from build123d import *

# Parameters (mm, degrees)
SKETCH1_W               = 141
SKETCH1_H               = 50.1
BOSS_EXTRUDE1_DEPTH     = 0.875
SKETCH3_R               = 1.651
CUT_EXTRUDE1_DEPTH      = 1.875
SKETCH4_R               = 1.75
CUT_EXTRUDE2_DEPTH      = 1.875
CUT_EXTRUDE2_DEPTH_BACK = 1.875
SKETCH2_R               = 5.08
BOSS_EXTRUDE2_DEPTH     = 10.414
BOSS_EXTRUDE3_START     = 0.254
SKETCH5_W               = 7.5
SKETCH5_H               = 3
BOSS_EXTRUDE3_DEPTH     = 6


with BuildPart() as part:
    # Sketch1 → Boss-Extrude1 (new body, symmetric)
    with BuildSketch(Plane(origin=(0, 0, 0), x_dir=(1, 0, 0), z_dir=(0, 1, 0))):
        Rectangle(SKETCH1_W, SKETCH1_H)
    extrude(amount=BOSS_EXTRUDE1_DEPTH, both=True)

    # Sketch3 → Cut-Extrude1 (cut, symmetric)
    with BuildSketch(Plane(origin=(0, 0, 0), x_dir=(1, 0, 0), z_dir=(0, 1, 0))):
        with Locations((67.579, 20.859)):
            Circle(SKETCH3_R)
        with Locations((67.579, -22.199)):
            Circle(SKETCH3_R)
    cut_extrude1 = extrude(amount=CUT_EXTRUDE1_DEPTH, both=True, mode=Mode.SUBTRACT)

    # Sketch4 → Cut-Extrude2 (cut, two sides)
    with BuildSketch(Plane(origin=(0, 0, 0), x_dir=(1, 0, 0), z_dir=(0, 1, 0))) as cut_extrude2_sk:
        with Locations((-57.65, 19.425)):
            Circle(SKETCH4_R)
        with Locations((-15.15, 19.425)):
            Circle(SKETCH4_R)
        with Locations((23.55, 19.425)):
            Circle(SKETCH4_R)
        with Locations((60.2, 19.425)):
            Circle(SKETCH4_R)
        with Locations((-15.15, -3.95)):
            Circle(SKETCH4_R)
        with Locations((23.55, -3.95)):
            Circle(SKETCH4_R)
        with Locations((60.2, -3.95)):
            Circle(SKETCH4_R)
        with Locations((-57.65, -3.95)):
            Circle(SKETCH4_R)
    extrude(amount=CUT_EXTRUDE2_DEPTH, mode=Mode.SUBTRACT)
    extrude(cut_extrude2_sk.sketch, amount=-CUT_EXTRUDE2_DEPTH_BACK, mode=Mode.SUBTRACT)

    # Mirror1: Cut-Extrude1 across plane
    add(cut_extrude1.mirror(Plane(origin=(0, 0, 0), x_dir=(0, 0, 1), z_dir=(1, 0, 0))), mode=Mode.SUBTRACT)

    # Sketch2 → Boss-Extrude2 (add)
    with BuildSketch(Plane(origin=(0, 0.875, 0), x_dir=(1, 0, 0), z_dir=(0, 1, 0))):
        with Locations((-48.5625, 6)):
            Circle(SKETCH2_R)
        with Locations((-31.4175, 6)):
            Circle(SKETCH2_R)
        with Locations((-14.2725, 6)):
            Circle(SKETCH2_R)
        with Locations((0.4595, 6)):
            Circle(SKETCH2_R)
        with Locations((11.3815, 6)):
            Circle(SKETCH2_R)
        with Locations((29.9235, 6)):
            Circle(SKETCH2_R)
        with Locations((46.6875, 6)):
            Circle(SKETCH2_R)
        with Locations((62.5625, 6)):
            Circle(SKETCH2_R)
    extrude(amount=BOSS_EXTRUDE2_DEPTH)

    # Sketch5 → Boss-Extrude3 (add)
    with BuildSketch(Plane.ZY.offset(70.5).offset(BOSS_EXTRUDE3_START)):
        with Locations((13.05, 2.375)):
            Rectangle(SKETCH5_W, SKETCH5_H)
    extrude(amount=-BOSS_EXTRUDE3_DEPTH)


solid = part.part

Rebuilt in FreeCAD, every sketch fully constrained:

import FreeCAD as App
import Part
import Sketcher
Q = App.Units.Quantity


def add_polygon(sketch, points):
    """Adds a closed chain of lines whose ends are joined by coincident constraints."""
    first, n = sketch.GeometryCount, len(points)
    for a, b in zip(points, points[1:] + points[:1]):
        sketch.addGeometry(Part.LineSegment(App.Vector(*a, 0), App.Vector(*b, 0)), False)
    for i in range(n):
        sketch.addConstraint(Sketcher.Constraint("Coincident", first + i, 2, first + (i + 1) % n, 1))

doc = App.newDocument("Part")
body = doc.addObject("PartDesign::Body", "Body")

sketch1 = doc.addObject("Sketcher::SketchObject", "Sketch")
body.addObject(sketch1)
sketch1.AttachmentSupport = (doc.XZ_Plane, [""])
sketch1.MapMode = "FlatFace"
add_polygon(sketch1, [(-70, -25), (-70, 25), (70, 25), (70, -25)])
sketch1.addConstraint([
    Sketcher.Constraint("Vertical", 0),
    Sketcher.Constraint("Horizontal", 1),
    Sketcher.Constraint("Vertical", 2),
    Sketcher.Constraint("Horizontal", 3),
    Sketcher.Constraint("Symmetric", 0, 2, 2, 2, -1, 1),
    Sketcher.Constraint("DistanceX", 1, 1, 1, 2, Q("141 mm")),
    Sketcher.Constraint("DistanceY", 0, 1, 0, 2, Q("50.1 mm")),
])
pad1 = doc.addObject("PartDesign::Pad", "Pad")
body.addObject(pad1)
pad1.Profile = sketch1
pad1.Length = 1.75
pad1.Midplane = True

sketch2 = doc.addObject("Sketcher::SketchObject", "Sketch001")
body.addObject(sketch2)
sketch2.AttachmentSupport = (doc.XZ_Plane, [""])
sketch2.MapMode = "FlatFace"
sketch2.addGeometry([
    Part.Circle(App.Vector(67.6, -20.9, 0), App.Vector(0, 0, 1), 1.7),
    Part.Circle(App.Vector(67.6, 22.2, 0), App.Vector(0, 0, 1), 1.7),
], False)
sketch2.addConstraint([
    Sketcher.Constraint("Equal", 0, 1),
    Sketcher.Constraint("Vertical", 0, 3, 1, 3),
    Sketcher.Constraint("Diameter", 0, Q("3.302 mm")),
    Sketcher.Constraint("DistanceX", -1, 1, 0, 3, Q("67.579 mm")),
    Sketcher.Constraint("DistanceY", 0, 3, -1, 1, Q("20.859 mm")),
    Sketcher.Constraint("DistanceY", -1, 1, 1, 3, Q("22.199 mm")),
])
pocket1 = doc.addObject("PartDesign::Pocket", "Pocket")
body.addObject(pocket1)
pocket1.Profile = sketch2
pocket1.Length = 3.75
pocket1.Midplane = True

sketch3 = doc.addObject("Sketcher::SketchObject", "Sketch002")
body.addObject(sketch3)
sketch3.AttachmentSupport = (doc.XZ_Plane, [""])
sketch3.MapMode = "FlatFace"
sketch3.addGeometry([
    Part.Circle(App.Vector(-57.6, -19.4, 0), App.Vector(0, 0, 1), 1.8),
    Part.Circle(App.Vector(-15.2, -19.4, 0), App.Vector(0, 0, 1), 1.8),
    Part.Circle(App.Vector(23.6, -19.4, 0), App.Vector(0, 0, 1), 1.8),
    Part.Circle(App.Vector(60.2, -19.4, 0), App.Vector(0, 0, 1), 1.8),
    Part.Circle(App.Vector(-15.2, 4, 0), App.Vector(0, 0, 1), 1.8),
    Part.Circle(App.Vector(23.6, 4, 0), App.Vector(0, 0, 1), 1.8),
    Part.Circle(App.Vector(60.2, 4, 0), App.Vector(0, 0, 1), 1.8),
    Part.Circle(App.Vector(-57.6, 4, 0), App.Vector(0, 0, 1), 1.8),
], False)
sketch3.addConstraint([
    Sketcher.Constraint("Equal", 0, 1),
    Sketcher.Constraint("Equal", 1, 2),
    Sketcher.Constraint("Equal", 2, 3),
    Sketcher.Constraint("Equal", 3, 4),
    Sketcher.Constraint("Equal", 4, 5),
    Sketcher.Constraint("Equal", 5, 6),
    Sketcher.Constraint("Equal", 6, 7),
    Sketcher.Constraint("Horizontal", 0, 3, 1, 3),
    Sketcher.Constraint("Horizontal", 1, 3, 2, 3),
    Sketcher.Constraint("Horizontal", 2, 3, 3, 3),
    Sketcher.Constraint("Horizontal", 4, 3, 5, 3),
    Sketcher.Constraint("Horizontal", 5, 3, 6, 3),
    Sketcher.Constraint("Horizontal", 6, 3, 7, 3),
    Sketcher.Constraint("Vertical", 1, 3, 4, 3),
    Sketcher.Constraint("Vertical", 2, 3, 5, 3),
    Sketcher.Constraint("Vertical", 3, 3, 6, 3),
    Sketcher.Constraint("Vertical", 0, 3, 7, 3),
    Sketcher.Constraint("Diameter", 0, Q("3.5 mm")),
    Sketcher.Constraint("DistanceX", -1, 1, 3, 3, Q("60.2 mm")),
    Sketcher.Constraint("DistanceX", 0, 3, 1, 3, Q("42.5 mm")),
    Sketcher.Constraint("DistanceX", 1, 3, 2, 3, Q("38.7 mm")),
    Sketcher.Constraint("DistanceX", 0, 3, -1, 1, Q("57.65 mm")),
    Sketcher.Constraint("DistanceY", -1, 1, 4, 3, Q("3.95 mm")),
    Sketcher.Constraint("DistanceY", 0, 3, -1, 1, Q("19.425 mm")),
])
pocket2 = doc.addObject("PartDesign::Pocket", "Pocket001")
body.addObject(pocket2)
pocket2.Profile = sketch3
pocket2.Type = "ThroughAll"
pocket2.Midplane = True
doc.recompute()

mirrored = doc.addObject("PartDesign::Mirrored", "Mirrored")
body.addObject(mirrored)
mirrored.Originals = [pocket1]
mirrored.MirrorPlane = (doc.YZ_Plane, [""])
body.Tip = mirrored

sketch4 = doc.addObject("Sketcher::SketchObject", "Sketch003")
body.addObject(sketch4)
sketch4.AttachmentSupport = (doc.XZ_Plane, [""])
sketch4.MapMode = "FlatFace"
sketch4.AttachmentOffset = App.Placement(App.Vector(0, 0, -0.875), App.Rotation())
sketch4.addGeometry([
    Part.Circle(App.Vector(-49, -6, 0), App.Vector(0, 0, 1), 5),
    Part.Circle(App.Vector(-31, -6, 0), App.Vector(0, 0, 1), 5),
    Part.Circle(App.Vector(-14, -6, 0), App.Vector(0, 0, 1), 5),
    Part.Circle(App.Vector(0, -6, 0), App.Vector(0, 0, 1), 5),
    Part.Circle(App.Vector(11, -6, 0), App.Vector(0, 0, 1), 5),
    Part.Circle(App.Vector(30, -6, 0), App.Vector(0, 0, 1), 5),
    Part.Circle(App.Vector(47, -6, 0), App.Vector(0, 0, 1), 5),
    Part.Circle(App.Vector(63, -6, 0), App.Vector(0, 0, 1), 5),
], False)
sketch4.addConstraint([
    Sketcher.Constraint("Equal", 0, 1),
    Sketcher.Constraint("Equal", 1, 2),
    Sketcher.Constraint("Equal", 2, 3),
    Sketcher.Constraint("Equal", 3, 4),
    Sketcher.Constraint("Equal", 4, 5),
    Sketcher.Constraint("Equal", 5, 6),
    Sketcher.Constraint("Equal", 6, 7),
    Sketcher.Constraint("Horizontal", 0, 3, 1, 3),
    Sketcher.Constraint("Horizontal", 1, 3, 2, 3),
    Sketcher.Constraint("Horizontal", 2, 3, 3, 3),
    Sketcher.Constraint("Horizontal", 3, 3, 4, 3),
    Sketcher.Constraint("Horizontal", 4, 3, 5, 3),
    Sketcher.Constraint("Horizontal", 5, 3, 6, 3),
    Sketcher.Constraint("Horizontal", 6, 3, 7, 3),
    Sketcher.Constraint("Diameter", 0, Q("10.16 mm")),
    Sketcher.Constraint("DistanceY", 0, 3, -1, 1, Q("6 mm")),
    Sketcher.Constraint("DistanceX", 0, 3, 2, 3, Q("34.29 mm")),
    Sketcher.Constraint("DistanceX", 2, 3, 6, 3, Q("60.96 mm")),
    Sketcher.Constraint("DistanceX", 0, 3, 1, 3, Q("17.145 mm")),
    Sketcher.Constraint("DistanceX", 2, 3, 3, 3, Q("14.732 mm")),
    Sketcher.Constraint("DistanceX", 3, 3, 4, 3, Q("10.922 mm")),
    Sketcher.Constraint("DistanceX", 4, 3, 5, 3, Q("18.542 mm")),
    Sketcher.Constraint("DistanceX", 6, 3, 7, 3, Q("15.875 mm")),
    Sketcher.Constraint("DistanceX", 0, 3, -1, 1, Q("48.5625 mm")),
])
pad2 = doc.addObject("PartDesign::Pad", "Pad001")
body.addObject(pad2)
pad2.Profile = sketch4
pad2.Length = 10.414
pad2.Reversed = True

sketch5 = doc.addObject("Sketcher::SketchObject", "Sketch004")
body.addObject(sketch5)
sketch5.AttachmentSupport = (doc.YZ_Plane, [""])
sketch5.MapMode = "FlatFace"
sketch5.AttachmentOffset = App.Placement(App.Vector(0, 0, -70.754), App.Rotation())
add_polygon(sketch5, [(3.9, 9.3), (0.9, 9.3), (0.9, 16.8), (3.9, 16.8)])
sketch5.addConstraint([
    Sketcher.Constraint("Horizontal", 0),
    Sketcher.Constraint("Vertical", 1),
    Sketcher.Constraint("Horizontal", 2),
    Sketcher.Constraint("Vertical", 3),
    Sketcher.Constraint("DistanceX", 0, 2, 0, 1, Q("3 mm")),
    Sketcher.Constraint("DistanceY", 1, 1, 1, 2, Q("7.5 mm")),
    Sketcher.Constraint("DistanceY", -1, 1, 0, 2, Q("9.3 mm")),
    Sketcher.Constraint("DistanceX", -1, 1, 0, 2, Q("0.875 mm")),
])
pad3 = doc.addObject("PartDesign::Pad", "Pad002")
body.addObject(pad3)
pad3.Profile = sketch5
pad3.Length = 6

doc.recompute()
